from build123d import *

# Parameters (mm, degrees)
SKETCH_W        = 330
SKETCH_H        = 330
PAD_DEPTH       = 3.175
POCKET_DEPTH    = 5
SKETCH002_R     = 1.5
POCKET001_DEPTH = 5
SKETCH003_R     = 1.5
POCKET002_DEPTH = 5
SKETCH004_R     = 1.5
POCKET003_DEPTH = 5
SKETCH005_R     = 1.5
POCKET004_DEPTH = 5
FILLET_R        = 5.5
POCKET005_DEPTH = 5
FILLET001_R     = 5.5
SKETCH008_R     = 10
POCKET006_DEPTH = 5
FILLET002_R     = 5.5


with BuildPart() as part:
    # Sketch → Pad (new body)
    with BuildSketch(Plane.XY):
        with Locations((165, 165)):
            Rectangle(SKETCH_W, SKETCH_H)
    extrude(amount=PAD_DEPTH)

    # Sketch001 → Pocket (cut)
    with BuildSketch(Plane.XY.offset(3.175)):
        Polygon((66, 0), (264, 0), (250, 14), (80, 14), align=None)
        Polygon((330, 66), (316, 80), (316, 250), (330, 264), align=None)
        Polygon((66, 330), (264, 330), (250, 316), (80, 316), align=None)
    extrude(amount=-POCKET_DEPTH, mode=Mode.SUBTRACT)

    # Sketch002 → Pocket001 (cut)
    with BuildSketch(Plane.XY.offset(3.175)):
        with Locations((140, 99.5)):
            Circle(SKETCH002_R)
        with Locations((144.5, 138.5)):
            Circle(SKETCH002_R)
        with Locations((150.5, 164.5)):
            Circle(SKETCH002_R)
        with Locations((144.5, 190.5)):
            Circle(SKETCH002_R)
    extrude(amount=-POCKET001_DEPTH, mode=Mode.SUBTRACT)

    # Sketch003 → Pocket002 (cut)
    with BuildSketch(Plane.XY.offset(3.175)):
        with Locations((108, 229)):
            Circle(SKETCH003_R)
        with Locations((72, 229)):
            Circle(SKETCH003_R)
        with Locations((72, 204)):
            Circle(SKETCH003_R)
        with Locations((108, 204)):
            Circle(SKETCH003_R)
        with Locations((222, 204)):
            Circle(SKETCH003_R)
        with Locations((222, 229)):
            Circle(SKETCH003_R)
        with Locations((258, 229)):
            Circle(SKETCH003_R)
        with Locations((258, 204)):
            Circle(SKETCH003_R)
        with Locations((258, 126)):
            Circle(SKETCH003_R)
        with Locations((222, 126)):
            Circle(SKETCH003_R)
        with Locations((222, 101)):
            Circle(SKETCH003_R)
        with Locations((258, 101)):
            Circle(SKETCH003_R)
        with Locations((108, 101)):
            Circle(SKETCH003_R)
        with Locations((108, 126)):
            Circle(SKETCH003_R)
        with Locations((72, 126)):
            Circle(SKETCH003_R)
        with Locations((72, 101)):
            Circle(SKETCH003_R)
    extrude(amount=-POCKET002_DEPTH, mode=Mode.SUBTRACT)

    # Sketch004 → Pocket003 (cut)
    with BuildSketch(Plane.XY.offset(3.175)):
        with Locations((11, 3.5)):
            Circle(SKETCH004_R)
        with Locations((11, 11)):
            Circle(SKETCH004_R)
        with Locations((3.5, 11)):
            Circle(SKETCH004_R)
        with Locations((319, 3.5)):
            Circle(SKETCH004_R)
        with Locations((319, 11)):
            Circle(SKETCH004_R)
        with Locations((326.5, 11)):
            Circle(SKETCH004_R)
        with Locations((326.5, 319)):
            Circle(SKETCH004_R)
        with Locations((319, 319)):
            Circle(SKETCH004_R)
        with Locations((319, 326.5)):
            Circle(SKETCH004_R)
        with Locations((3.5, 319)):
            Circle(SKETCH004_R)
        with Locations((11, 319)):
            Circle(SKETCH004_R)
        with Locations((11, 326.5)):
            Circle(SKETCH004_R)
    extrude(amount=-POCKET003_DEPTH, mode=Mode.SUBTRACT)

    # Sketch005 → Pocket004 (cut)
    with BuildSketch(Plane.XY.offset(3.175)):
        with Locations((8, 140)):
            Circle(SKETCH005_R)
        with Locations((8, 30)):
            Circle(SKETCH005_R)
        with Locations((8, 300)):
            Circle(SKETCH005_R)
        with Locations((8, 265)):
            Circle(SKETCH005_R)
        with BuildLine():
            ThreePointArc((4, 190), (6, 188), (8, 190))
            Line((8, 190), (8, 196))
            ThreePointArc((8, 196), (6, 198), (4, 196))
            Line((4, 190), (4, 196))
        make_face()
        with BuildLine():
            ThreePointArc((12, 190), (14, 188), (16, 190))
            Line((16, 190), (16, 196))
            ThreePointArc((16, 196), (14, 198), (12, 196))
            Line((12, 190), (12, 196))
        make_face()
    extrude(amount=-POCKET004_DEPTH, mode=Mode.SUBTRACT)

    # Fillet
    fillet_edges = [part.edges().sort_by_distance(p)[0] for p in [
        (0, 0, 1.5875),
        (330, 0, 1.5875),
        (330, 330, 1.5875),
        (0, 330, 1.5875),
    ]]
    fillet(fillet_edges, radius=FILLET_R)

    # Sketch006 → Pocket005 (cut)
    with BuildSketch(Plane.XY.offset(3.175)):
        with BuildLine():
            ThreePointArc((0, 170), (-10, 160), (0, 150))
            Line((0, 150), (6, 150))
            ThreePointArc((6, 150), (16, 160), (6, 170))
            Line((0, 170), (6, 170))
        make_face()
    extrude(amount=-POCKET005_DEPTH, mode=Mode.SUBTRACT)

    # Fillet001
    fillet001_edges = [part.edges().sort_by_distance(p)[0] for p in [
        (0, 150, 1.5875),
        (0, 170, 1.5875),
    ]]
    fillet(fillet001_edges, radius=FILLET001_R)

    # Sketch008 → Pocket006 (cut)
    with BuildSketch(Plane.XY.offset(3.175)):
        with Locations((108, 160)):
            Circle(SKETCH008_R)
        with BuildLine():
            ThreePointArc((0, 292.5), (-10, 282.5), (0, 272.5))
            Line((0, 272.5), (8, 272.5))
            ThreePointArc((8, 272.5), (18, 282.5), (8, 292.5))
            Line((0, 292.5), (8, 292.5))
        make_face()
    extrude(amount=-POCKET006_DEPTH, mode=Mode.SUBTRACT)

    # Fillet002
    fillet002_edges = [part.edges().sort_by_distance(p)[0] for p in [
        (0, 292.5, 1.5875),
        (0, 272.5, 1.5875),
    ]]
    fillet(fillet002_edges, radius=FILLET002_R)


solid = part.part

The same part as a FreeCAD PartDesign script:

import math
import FreeCAD as App
import Part
import Sketcher

V = App.Vector
Q = App.Units.Quantity


def edges_at(feature, points):
    """Names of the edges that pass closest to the given points."""
    edges = feature.Shape.Edges
    near = lambda p: min(range(len(edges)), key=lambda i: edges[i].distToShape(Part.Vertex(*p))[0])
    return sorted({f"Edge{near(p) + 1}" for p in points})


def add_polygon(sketch, points):
    """Adds a closed chain of lines whose ends are joined by coincident constraints."""
    first, n = sketch.GeometryCount, len(points)
    for a, b in zip(points, points[1:] + points[:1]):
        sketch.addGeometry(Part.LineSegment(App.Vector(*a, 0), App.Vector(*b, 0)), False)
    for i in range(n):
        sketch.addConstraint(Sketcher.Constraint("Coincident", first + i, 2, first + (i + 1) % n, 1))

doc = App.newDocument("Part")
body = doc.addObject("PartDesign::Body", "Body")

sketch1 = body.newObject("Sketcher::SketchObject", "Sketch")
sketch1.AttachmentSupport = (doc.getObject("XY_Plane"), [""])
sketch1.MapMode = "FlatFace"
add_polygon(sketch1, [(0, 330), (0, 0), (330, 0), (330, 330)])
sketch1.addConstraint([
    Sketcher.Constraint("Vertical", 0),
    Sketcher.Constraint("Horizontal", 1),
    Sketcher.Constraint("Vertical", 2),
    Sketcher.Constraint("Horizontal", 3),
    Sketcher.Constraint("Coincident", 0, 2, -1, 1),
    Sketcher.Constraint("Equal", 3, 0),
    Sketcher.Constraint("DistanceX", 1, 1, 1, 2, Q("330 mm")),
])
pad1 = body.newObject("PartDesign::Pad", "Pad")
pad1.Profile = sketch1
pad1.Length = 3.175

sketch2 = body.newObject("Sketcher::SketchObject", "Sketch001")
sketch2.AttachmentSupport = (doc.getObject("XY_Plane"), [""])
sketch2.MapMode = "FlatFace"
sketch2.AttachmentOffset = App.Placement(V(0, 0, 3.175), App.Rotation())
add_polygon(sketch2, [(66, 0), (264, 0), (250, 14), (80, 14)])
add_polygon(sketch2, [(316, 80), (330, 66), (330, 264), (316, 250)])
add_polygon(sketch2, [(264, 330), (66, 330), (80, 316), (250, 316)])
sketch2.addConstraint([
    Sketcher.Constraint("Horizontal", 0),
    Sketcher.Constraint("Horizontal", 2),
    Sketcher.Constraint("Vertical", 5),
    Sketcher.Constraint("Vertical", 7),
    Sketcher.Constraint("Horizontal", 8),
    Sketcher.Constraint("Horizontal", 10),
    Sketcher.Constraint("PointOnObject", 0, 2, -1),
    Sketcher.Constraint("Perpendicular", 1, 3),
    Sketcher.Constraint("Perpendicular", 3, 4),
    Sketcher.Constraint("Perpendicular", 4, 6),
    Sketcher.Constraint("Perpendicular", 6, 9),
    Sketcher.Constraint("Perpendicular", 9, 11),
    Sketcher.Constraint("Vertical", 3, 2, 8, 2),
    Sketcher.Constraint("Vertical", 2, 2, 9, 2),
    Sketcher.Constraint("Vertical", 1, 2, 10, 2),
    Sketcher.Constraint("Vertical", 0, 2, 11, 2),
    Sketcher.Constraint("Equal", 8, 5),
    Sketcher.Constraint("Equal", 10, 7),
    Sketcher.Constraint("DistanceX", 0, 1, 0, 2, Q("198 mm")),
    Sketcher.Constraint("DistanceX", 2, 2, 2, 1, Q("170 mm")),
    Sketcher.Constraint("DistanceX", -1, 1, 0, 2, Q("264 mm")),
    Sketcher.Constraint("DistanceX", -1, 1, 4, 2, Q("330 mm")),
    Sketcher.Constraint("DistanceY", -1, 1, 4, 2, Q("66 mm")),
    Sketcher.Constraint("DistanceY", -1, 1, 8, 2, Q("330 mm")),
])
pocket1 = body.newObject("PartDesign::Pocket", "Pocket")
pocket1.Profile = sketch2
pocket1.Length = 5

sketch3 = body.newObject("Sketcher::SketchObject", "Sketch002")
sketch3.AttachmentSupport = (doc.getObject("XY_Plane"), [""])
sketch3.MapMode = "FlatFace"
sketch3.AttachmentOffset = App.Placement(V(0, 0, 3.175), App.Rotation())
sketch3.addGeometry([
    Part.Circle(V(140, 99.5, 0), V(0, 0, 1), 1.5),
    Part.Circle(V(144.5, 138.5, 0), V(0, 0, 1), 1.5),
    Part.Circle(V(150.5, 164.5, 0), V(0, 0, 1), 1.5),
    Part.Circle(V(144.5, 190.5, 0), V(0, 0, 1), 1.5),
], False)
sketch3.addConstraint([
    Sketcher.Constraint("Equal", 0, 1),
    Sketcher.Constraint("Equal", 1, 2),
    Sketcher.Constraint("Equal", 2, 3),
    Sketcher.Constraint("Vertical", 1, 3, 3, 3),
    Sketcher.Constraint("Diameter", 0, Q("3 mm")),
    Sketcher.Constraint("DistanceX", -1, 1, 0, 3, Q("140 mm")),
    Sketcher.Constraint("DistanceY", 0, 3, 1, 3, Q("39 mm")),
    Sketcher.Constraint("DistanceX", 1, 3, 2, 3, Q("6 mm")),
    Sketcher.Constraint("DistanceY", 1, 3, 2, 3, Q("26 mm")),
    Sketcher.Constraint("DistanceY", 2, 3, 3, 3, Q("26 mm")),
    Sketcher.Constraint("DistanceY", -1, 1, 0, 3, Q("99.5 mm")),
    Sketcher.Constraint("DistanceX", -1, 1, 1, 3, Q("144.5 mm")),
])
pocket2 = body.newObject("PartDesign::Pocket", "Pocket001")
pocket2.Profile = sketch3
pocket2.Length = 5

sketch4 = body.newObject("Sketcher::SketchObject", "Sketch003")
sketch4.AttachmentSupport = (doc.getObject("XY_Plane"), [""])
sketch4.MapMode = "FlatFace"
sketch4.AttachmentOffset = App.Placement(V(0, 0, 3.175), App.Rotation())
sketch4.addGeometry([
    Part.Circle(V(108, 229, 0), V(0, 0, 1), 1.5),
    Part.Circle(V(72, 229, 0), V(0, 0, 1), 1.5),
    Part.Circle(V(72, 204, 0), V(0, 0, 1), 1.5),
    Part.Circle(V(108, 204, 0), V(0, 0, 1), 1.5),
    Part.Circle(V(222, 204, 0), V(0, 0, 1), 1.5),
    Part.Circle(V(222, 229, 0), V(0, 0, 1), 1.5),
    Part.Circle(V(258, 229, 0), V(0, 0, 1), 1.5),
    Part.Circle(V(258, 204, 0), V(0, 0, 1), 1.5),
    Part.Circle(V(258, 126, 0), V(0, 0, 1), 1.5),
    Part.Circle(V(222, 126, 0), V(0, 0, 1), 1.5),
    Part.Circle(V(222, 101, 0), V(0, 0, 1), 1.5),
    Part.Circle(V(258, 101, 0), V(0, 0, 1), 1.5),
    Part.Circle(V(108, 101, 0), V(0, 0, 1), 1.5),
    Part.Circle(V(108, 126, 0), V(0, 0, 1), 1.5),
    Part.Circle(V(72, 126, 0), V(0, 0, 1), 1.5),
    Part.Circle(V(72, 101, 0), V(0, 0, 1), 1.5),
], False)
sketch4.addConstraint([
    Sketcher.Constraint("Equal", 0, 1),
    Sketcher.Constraint("Equal", 1, 2),
    Sketcher.Constraint("Equal", 2, 3),
    Sketcher.Constraint("Equal", 3, 4),
    Sketcher.Constraint("Equal", 4, 5),
    Sketcher.Constraint("Equal", 5, 6),
    Sketcher.Constraint("Equal", 6, 7),
    Sketcher.Constraint("Equal", 7, 8),
    Sketcher.Constraint("Equal", 8, 9),
    Sketcher.Constraint("Equal", 9, 10),
    Sketcher.Constraint("Equal", 10, 11),
    Sketcher.Constraint("Equal", 11, 12),
    Sketcher.Constraint("Equal", 12, 13),
    Sketcher.Constraint("Equal", 13, 14),
    Sketcher.Constraint("Equal", 14, 15),
    Sketcher.Constraint("Horizontal", 0, 3, 1, 3),
    Sketcher.Constraint("Horizontal", 2, 3, 3, 3),
    Sketcher.Constraint("Horizontal", 3, 3, 4, 3),
    Sketcher.Constraint("Horizontal", 1, 3, 5, 3),
    Sketcher.Constraint("Horizontal", 5, 3, 6, 3),
    Sketcher.Constraint("Horizontal", 4, 3, 7, 3),
    Sketcher.Constraint("Horizontal", 8, 3, 9, 3),
    Sketcher.Constraint("Horizontal", 10, 3, 11, 3),
    Sketcher.Constraint("Horizontal", 11, 3, 12, 3),
    Sketcher.Constraint("Horizontal", 9, 3, 13, 3),
    Sketcher.Constraint("Horizontal", 13, 3, 14, 3),
    Sketcher.Constraint("Horizontal", 12, 3, 15, 3),
    Sketcher.Constraint("Vertical", 1, 3, 2, 3),
    Sketcher.Constraint("Vertical", 0, 3, 3, 3),
    Sketcher.Constraint("Vertical", 4, 3, 5, 3),
    Sketcher.Constraint("Vertical", 6, 3, 7, 3),
    Sketcher.Constraint("Vertical", 7, 3, 8, 3),
    Sketcher.Constraint("Vertical", 5, 3, 9, 3),
    Sketcher.Constraint("Vertical", 9, 3, 10, 3),
    Sketcher.Constraint("Vertical", 8, 3, 11, 3),
    Sketcher.Constraint("Vertical", 3, 3, 12, 3),
    Sketcher.Constraint("Vertical", 12, 3, 13, 3),
    Sketcher.Constraint("Vertical", 2, 3, 14, 3),
    Sketcher.Constraint("Vertical", 14, 3, 15, 3),
    Sketcher.Constraint("Diameter", 0, Q("3 mm")),
    Sketcher.Constraint("DistanceX", -1, 1, 0, 3, Q("108 mm")),
    Sketcher.Constraint("DistanceY", -1, 1, 0, 3, Q("229 mm")),
    Sketcher.Constraint("DistanceX", -1, 1, 1, 3, Q("72 mm")),
    Sketcher.Constraint("DistanceY", -1, 1, 2, 3, Q("204 mm")),
    Sketcher.Constraint("DistanceX", -1, 1, 4, 3, Q("222 mm")),
    Sketcher.Constraint("DistanceX", -1, 1, 6, 3, Q("258 mm")),
    Sketcher.Constraint("DistanceY", -1, 1, 8, 3, Q("126 mm")),
    Sketcher.Constraint("DistanceY", -1, 1, 10, 3, Q("101 mm")),
])
pocket3 = body.newObject("PartDesign::Pocket", "Pocket002")
pocket3.Profile = sketch4
pocket3.Length = 5

sketch5 = body.newObject("Sketcher::SketchObject", "Sketch004")
sketch5.AttachmentSupport = (doc.getObject("XY_Plane"), [""])
sketch5.MapMode = "FlatFace"
sketch5.AttachmentOffset = App.Placement(V(0, 0, 3.175), App.Rotation())
sketch5.addGeometry([
    Part.Circle(V(11, 3.5, 0), V(0, 0, 1), 1.5),
    Part.Circle(V(11, 11, 0), V(0, 0, 1), 1.5),
    Part.Circle(V(3.5, 11, 0), V(0, 0, 1), 1.5),
    Part.Circle(V(319, 3.5, 0), V(0, 0, 1), 1.5),
    Part.Circle(V(319, 11, 0), V(0, 0, 1), 1.5),
    Part.Circle(V(326.5, 11, 0), V(0, 0, 1), 1.5),
    Part.Circle(V(326.5, 319, 0), V(0, 0, 1), 1.5),
    Part.Circle(V(319, 319, 0), V(0, 0, 1), 1.5),
    Part.Circle(V(319, 326.5, 0), V(0, 0, 1), 1.5),
    Part.Circle(V(3.5, 319, 0), V(0, 0, 1), 1.5),
    Part.Circle(V(11, 319, 0), V(0, 0, 1), 1.5),
    Part.Circle(V(11, 326.5, 0), V(0, 0, 1), 1.5),
], False)
sketch5.addConstraint([
    Sketcher.Constraint("Equal", 0, 1),
    Sketcher.Constraint("Equal", 1, 2),
    Sketcher.Constraint("Equal", 2, 3),
    Sketcher.Constraint("Equal", 3, 4),
    Sketcher.Constraint("Equal", 4, 5),
    Sketcher.Constraint("Equal", 5, 6),
    Sketcher.Constraint("Equal", 6, 7),
    Sketcher.Constraint("Equal", 7, 8),
    Sketcher.Constraint("Equal", 8, 9),
    Sketcher.Constraint("Equal", 9, 10),
    Sketcher.Constraint("Equal", 10, 11),
    Sketcher.Constraint("Horizontal", 1, 3, 2, 3),
    Sketcher.Constraint("Horizontal", 0, 3, 3, 3),
    Sketcher.Constraint("Horizontal", 2, 3, 4, 3),
    Sketcher.Constraint("Horizontal", 4, 3, 5, 3),
    Sketcher.Constraint("Horizontal", 6, 3, 7, 3),
    Sketcher.Constraint("Horizontal", 7, 3, 9, 3),
    Sketcher.Constraint("Horizontal", 9, 3, 10, 3),
    Sketcher.Constraint("Horizontal", 8, 3, 11, 3),
    Sketcher.Constraint("Vertical", 0, 3, 1, 3),
    Sketcher.Constraint("Vertical", 3, 3, 4, 3),
    Sketcher.Constraint("Vertical", 5, 3, 6, 3),
    Sketcher.Constraint("Vertical", 4, 3, 7, 3),
    Sketcher.Constraint("Vertical", 7, 3, 8, 3),
    Sketcher.Constraint("Vertical", 2, 3, 9, 3),
    Sketcher.Constraint("Vertical", 1, 3, 10, 3),
    Sketcher.Constraint("Vertical", 10, 3, 11, 3),
    Sketcher.Constraint("Diameter", 0, Q("3 mm")),
    Sketcher.Constraint("DistanceX", -1, 1, 0, 3, Q("11 mm")),
    Sketcher.Constraint("DistanceY", -1, 1, 1, 3, Q("11 mm")),
    Sketcher.Constraint("DistanceX", -1, 1, 3, 3, Q("319 mm")),
    Sketcher.Constraint("DistanceY", -1, 1, 6, 3, Q("319 mm")),
    Sketcher.Constraint("DistanceX", 2, 3, 5, 3, Q("323 mm")),
    Sketcher.Constraint("DistanceY", 3, 3, 8, 3, Q("323 mm")),
    Sketcher.Constraint("DistanceY", -1, 1, 0, 3, Q("3.5 mm")),
    Sketcher.Constraint("DistanceX", -1, 1, 2, 3, Q("3.5 mm")),
])
pocket4 = body.newObject("PartDesign::Pocket", "Pocket003")
pocket4.Profile = sketch5
pocket4.Length = 5

sketch6 = body.newObject("Sketcher::SketchObject", "Sketch005")
sketch6.AttachmentSupport = (doc.getObject("XY_Plane"), [""])
sketch6.MapMode = "FlatFace"
sketch6.AttachmentOffset = App.Placement(V(0, 0, 3.175), App.Rotation())
sketch6.addGeometry([
    Part.Circle(V(8, 140, 0), V(0, 0, 1), 1.5),
    Part.Circle(V(8, 30, 0), V(0, 0, 1), 1.5),
    Part.Circle(V(8, 300, 0), V(0, 0, 1), 1.5),
    Part.Circle(V(8, 265, 0), V(0, 0, 1), 1.5),
    Part.ArcOfCircle(Part.Circle(V(6, 190, 0), V(0, 0, 1), 2), math.radians(180), math.radians(360)),
    Part.LineSegment(V(8, 190, 0), V(8, 196, 0)),
    Part.ArcOfCircle(Part.Circle(V(6, 196, 0), V(0, 0, 1), 2), math.radians(0), math.radians(180)),
    Part.LineSegment(V(4, 196, 0), V(4, 190, 0)),
    Part.ArcOfCircle(Part.Circle(V(14, 190, 0), V(0, 0, 1), 2), math.radians(180), math.radians(360)),
    Part.LineSegment(V(16, 190, 0), V(16, 196, 0)),
    Part.ArcOfCircle(Part.Circle(V(14, 196, 0), V(0, 0, 1), 2), math.radians(0), math.radians(180)),
    Part.LineSegment(V(12, 196, 0), V(12, 190, 0)),
], False)
sketch6.addConstraint([
    Sketcher.Constraint("Tangent", 4, 2, 5, 1),
    Sketcher.Constraint("Tangent", 5, 2, 6, 1),
    Sketcher.Constraint("Tangent", 6, 2, 7, 1),
    Sketcher.Constraint("Tangent", 7, 2, 4, 1),
    Sketcher.Constraint("Tangent", 8, 2, 9, 1),
    Sketcher.Constraint("Tangent", 9, 2, 10, 1),
    Sketcher.Constraint("Tangent", 10, 2, 11, 1),
    Sketcher.Constraint("Tangent", 11, 2, 8, 1),
    Sketcher.Constraint("Vertical", 5),
    Sketcher.Constraint("Vertical", 7),
    Sketcher.Constraint("Vertical", 9),
    Sketcher.Constraint("Vertical", 11),
    Sketcher.Constraint("Equal", 0, 1),
    Sketcher.Constraint("Equal", 1, 2),
    Sketcher.Constraint("Equal", 2, 3),
    Sketcher.Constraint("Equal", 6, 8),
    Sketcher.Constraint("Horizontal", 4, 3, 8, 3),
    Sketcher.Constraint("Horizontal", 6, 3, 10, 3),
    Sketcher.Constraint("Vertical", 0, 3, 1, 3),
    Sketcher.Constraint("Vertical", 1, 3, 2, 3),
    Sketcher.Constraint("Vertical", 2, 3, 3, 3),
    Sketcher.Constraint("Vertical", 3, 3, 4, 2),
    Sketcher.Constraint("Diameter", 0, Q("3 mm")),
    Sketcher.Constraint("Radius", 4, Q("2 mm")),
    Sketcher.Constraint("DistanceY", 5, 1, 5, 2, Q("6 mm")),
    Sketcher.Constraint("DistanceX", -1, 1, 0, 3, Q("8 mm")),
    Sketcher.Constraint("DistanceY", -1, 1, 0, 3, Q("140 mm")),
    Sketcher.Constraint("DistanceY", -1, 1, 1, 3, Q("30 mm")),
    Sketcher.Constraint("DistanceY", -1, 1, 2, 3, Q("300 mm")),
    Sketcher.Constraint("DistanceY", -1, 1, 3, 3, Q("265 mm")),
    Sketcher.Constraint("DistanceY", -1, 1, 4, 3, Q("190 mm")),
    Sketcher.Constraint("DistanceX", -1, 1, 8, 3, Q("14 mm")),
])
pocket5 = body.newObject("PartDesign::Pocket", "Pocket004")
pocket5.Profile = sketch6
pocket5.Length = 5
doc.recompute()

fillet = body.newObject("PartDesign::Fillet", "Fillet")
fillet.Base = (pocket5, edges_at(pocket5, [
    (0, 0, 1.587),
    (330, 0, 1.587),
    (330, 330, 1.587),
    (0, 330, 1.587),
]))
fillet.Radius = 5.5

sketch7 = body.newObject("Sketcher::SketchObject", "Sketch006")
sketch7.AttachmentSupport = (doc.getObject("XY_Plane"), [""])
sketch7.MapMode = "FlatFace"
sketch7.AttachmentOffset = App.Placement(V(0, 0, 3.175), App.Rotation())
sketch7.addGeometry([
    Part.ArcOfCircle(Part.Circle(V(0, 160, 0), V(0, 0, 1), 10), math.radians(90), math.radians(270)),
    Part.LineSegment(V(0, 150, 0), V(6, 150, 0)),
    Part.ArcOfCircle(Part.Circle(V(6, 160, 0), V(0, 0, 1), 10), math.radians(-90), math.radians(90)),
    Part.LineSegment(V(6, 170, 0), V(0, 170, 0)),
], False)
sketch7.addConstraint([
    Sketcher.Constraint("Tangent", 0, 2, 1, 1),
    Sketcher.Constraint("Tangent", 1, 2, 2, 1),
    Sketcher.Constraint("Tangent", 2, 2, 3, 1),
    Sketcher.Constraint("Tangent", 3, 2, 0, 1),
    Sketcher.Constraint("Horizontal", 1),
    Sketcher.Constraint("Horizontal", 3),
    Sketcher.Constraint("PointOnObject", 0, 3, -2),
    Sketcher.Constraint("Radius", 0, Q("10 mm")),
    Sketcher.Constraint("DistanceX", 1, 1, 1, 2, Q("6 mm")),
    Sketcher.Constraint("DistanceY", -1, 1, 0, 3, Q("160 mm")),
])
pocket6 = body.newObject("PartDesign::Pocket", "Pocket005")
pocket6.Profile = sketch7
pocket6.Length = 5
doc.recompute()

fillet2 = body.newObject("PartDesign::Fillet", "Fillet001")
fillet2.Base = (pocket6, edges_at(pocket6, [(0, 150, 1.587), (0, 170, 1.587)]))
fillet2.Radius = 5.5

sketch8 = body.newObject("Sketcher::SketchObject", "Sketch007")
sketch8.AttachmentSupport = (doc.getObject("XY_Plane"), [""])
sketch8.MapMode = "FlatFace"
sketch8.AttachmentOffset = App.Placement(V(0, 0, 3.175), App.Rotation())
sketch8.addGeometry([
    Part.Circle(V(108, 160, 0), V(0, 0, 1), 10),
    Part.ArcOfCircle(Part.Circle(V(0, 282.5, 0), V(0, 0, 1), 10), math.radians(90), math.radians(270)),
    Part.LineSegment(V(0, 272.5, 0), V(8, 272.5, 0)),
    Part.ArcOfCircle(Part.Circle(V(8, 282.5, 0), V(0, 0, 1), 10), math.radians(-90), math.radians(90)),
    Part.LineSegment(V(8, 292.5, 0), V(0, 292.5, 0)),
], False)
sketch8.addConstraint([
    Sketcher.Constraint("Tangent", 1, 2, 2, 1),
    Sketcher.Constraint("Tangent", 2, 2, 3, 1),
    Sketcher.Constraint("Tangent", 3, 2, 4, 1),
    Sketcher.Constraint("Tangent", 4, 2, 1, 1),
    Sketcher.Constraint("Horizontal", 2),
    Sketcher.Constraint("Horizontal", 4),
    Sketcher.Constraint("Equal", 0, 1),
    Sketcher.Constraint("PointOnObject", 1, 3, -2),
    Sketcher.Constraint("Diameter", 0, Q("20 mm")),
    Sketcher.Constraint("DistanceX", 2, 1, 2, 2, Q("8 mm")),
    Sketcher.Constraint("DistanceX", -1, 1, 0, 3, Q("108 mm")),
    Sketcher.Constraint("DistanceY", -1, 1, 0, 3, Q("160 mm")),
    Sketcher.Constraint("DistanceY", -1, 1, 1, 3, Q("282.5 mm")),
])
pocket7 = body.newObject("PartDesign::Pocket", "Pocket006")
pocket7.Profile = sketch8
pocket7.Length = 5
doc.recompute()

fillet3 = body.newObject("PartDesign::Fillet", "Fillet002")
fillet3.Base = (pocket7, edges_at(pocket7, [(0, 292.5, 1.587), (0, 272.5, 1.587)]))
fillet3.Radius = 5.5

doc.recompute()
